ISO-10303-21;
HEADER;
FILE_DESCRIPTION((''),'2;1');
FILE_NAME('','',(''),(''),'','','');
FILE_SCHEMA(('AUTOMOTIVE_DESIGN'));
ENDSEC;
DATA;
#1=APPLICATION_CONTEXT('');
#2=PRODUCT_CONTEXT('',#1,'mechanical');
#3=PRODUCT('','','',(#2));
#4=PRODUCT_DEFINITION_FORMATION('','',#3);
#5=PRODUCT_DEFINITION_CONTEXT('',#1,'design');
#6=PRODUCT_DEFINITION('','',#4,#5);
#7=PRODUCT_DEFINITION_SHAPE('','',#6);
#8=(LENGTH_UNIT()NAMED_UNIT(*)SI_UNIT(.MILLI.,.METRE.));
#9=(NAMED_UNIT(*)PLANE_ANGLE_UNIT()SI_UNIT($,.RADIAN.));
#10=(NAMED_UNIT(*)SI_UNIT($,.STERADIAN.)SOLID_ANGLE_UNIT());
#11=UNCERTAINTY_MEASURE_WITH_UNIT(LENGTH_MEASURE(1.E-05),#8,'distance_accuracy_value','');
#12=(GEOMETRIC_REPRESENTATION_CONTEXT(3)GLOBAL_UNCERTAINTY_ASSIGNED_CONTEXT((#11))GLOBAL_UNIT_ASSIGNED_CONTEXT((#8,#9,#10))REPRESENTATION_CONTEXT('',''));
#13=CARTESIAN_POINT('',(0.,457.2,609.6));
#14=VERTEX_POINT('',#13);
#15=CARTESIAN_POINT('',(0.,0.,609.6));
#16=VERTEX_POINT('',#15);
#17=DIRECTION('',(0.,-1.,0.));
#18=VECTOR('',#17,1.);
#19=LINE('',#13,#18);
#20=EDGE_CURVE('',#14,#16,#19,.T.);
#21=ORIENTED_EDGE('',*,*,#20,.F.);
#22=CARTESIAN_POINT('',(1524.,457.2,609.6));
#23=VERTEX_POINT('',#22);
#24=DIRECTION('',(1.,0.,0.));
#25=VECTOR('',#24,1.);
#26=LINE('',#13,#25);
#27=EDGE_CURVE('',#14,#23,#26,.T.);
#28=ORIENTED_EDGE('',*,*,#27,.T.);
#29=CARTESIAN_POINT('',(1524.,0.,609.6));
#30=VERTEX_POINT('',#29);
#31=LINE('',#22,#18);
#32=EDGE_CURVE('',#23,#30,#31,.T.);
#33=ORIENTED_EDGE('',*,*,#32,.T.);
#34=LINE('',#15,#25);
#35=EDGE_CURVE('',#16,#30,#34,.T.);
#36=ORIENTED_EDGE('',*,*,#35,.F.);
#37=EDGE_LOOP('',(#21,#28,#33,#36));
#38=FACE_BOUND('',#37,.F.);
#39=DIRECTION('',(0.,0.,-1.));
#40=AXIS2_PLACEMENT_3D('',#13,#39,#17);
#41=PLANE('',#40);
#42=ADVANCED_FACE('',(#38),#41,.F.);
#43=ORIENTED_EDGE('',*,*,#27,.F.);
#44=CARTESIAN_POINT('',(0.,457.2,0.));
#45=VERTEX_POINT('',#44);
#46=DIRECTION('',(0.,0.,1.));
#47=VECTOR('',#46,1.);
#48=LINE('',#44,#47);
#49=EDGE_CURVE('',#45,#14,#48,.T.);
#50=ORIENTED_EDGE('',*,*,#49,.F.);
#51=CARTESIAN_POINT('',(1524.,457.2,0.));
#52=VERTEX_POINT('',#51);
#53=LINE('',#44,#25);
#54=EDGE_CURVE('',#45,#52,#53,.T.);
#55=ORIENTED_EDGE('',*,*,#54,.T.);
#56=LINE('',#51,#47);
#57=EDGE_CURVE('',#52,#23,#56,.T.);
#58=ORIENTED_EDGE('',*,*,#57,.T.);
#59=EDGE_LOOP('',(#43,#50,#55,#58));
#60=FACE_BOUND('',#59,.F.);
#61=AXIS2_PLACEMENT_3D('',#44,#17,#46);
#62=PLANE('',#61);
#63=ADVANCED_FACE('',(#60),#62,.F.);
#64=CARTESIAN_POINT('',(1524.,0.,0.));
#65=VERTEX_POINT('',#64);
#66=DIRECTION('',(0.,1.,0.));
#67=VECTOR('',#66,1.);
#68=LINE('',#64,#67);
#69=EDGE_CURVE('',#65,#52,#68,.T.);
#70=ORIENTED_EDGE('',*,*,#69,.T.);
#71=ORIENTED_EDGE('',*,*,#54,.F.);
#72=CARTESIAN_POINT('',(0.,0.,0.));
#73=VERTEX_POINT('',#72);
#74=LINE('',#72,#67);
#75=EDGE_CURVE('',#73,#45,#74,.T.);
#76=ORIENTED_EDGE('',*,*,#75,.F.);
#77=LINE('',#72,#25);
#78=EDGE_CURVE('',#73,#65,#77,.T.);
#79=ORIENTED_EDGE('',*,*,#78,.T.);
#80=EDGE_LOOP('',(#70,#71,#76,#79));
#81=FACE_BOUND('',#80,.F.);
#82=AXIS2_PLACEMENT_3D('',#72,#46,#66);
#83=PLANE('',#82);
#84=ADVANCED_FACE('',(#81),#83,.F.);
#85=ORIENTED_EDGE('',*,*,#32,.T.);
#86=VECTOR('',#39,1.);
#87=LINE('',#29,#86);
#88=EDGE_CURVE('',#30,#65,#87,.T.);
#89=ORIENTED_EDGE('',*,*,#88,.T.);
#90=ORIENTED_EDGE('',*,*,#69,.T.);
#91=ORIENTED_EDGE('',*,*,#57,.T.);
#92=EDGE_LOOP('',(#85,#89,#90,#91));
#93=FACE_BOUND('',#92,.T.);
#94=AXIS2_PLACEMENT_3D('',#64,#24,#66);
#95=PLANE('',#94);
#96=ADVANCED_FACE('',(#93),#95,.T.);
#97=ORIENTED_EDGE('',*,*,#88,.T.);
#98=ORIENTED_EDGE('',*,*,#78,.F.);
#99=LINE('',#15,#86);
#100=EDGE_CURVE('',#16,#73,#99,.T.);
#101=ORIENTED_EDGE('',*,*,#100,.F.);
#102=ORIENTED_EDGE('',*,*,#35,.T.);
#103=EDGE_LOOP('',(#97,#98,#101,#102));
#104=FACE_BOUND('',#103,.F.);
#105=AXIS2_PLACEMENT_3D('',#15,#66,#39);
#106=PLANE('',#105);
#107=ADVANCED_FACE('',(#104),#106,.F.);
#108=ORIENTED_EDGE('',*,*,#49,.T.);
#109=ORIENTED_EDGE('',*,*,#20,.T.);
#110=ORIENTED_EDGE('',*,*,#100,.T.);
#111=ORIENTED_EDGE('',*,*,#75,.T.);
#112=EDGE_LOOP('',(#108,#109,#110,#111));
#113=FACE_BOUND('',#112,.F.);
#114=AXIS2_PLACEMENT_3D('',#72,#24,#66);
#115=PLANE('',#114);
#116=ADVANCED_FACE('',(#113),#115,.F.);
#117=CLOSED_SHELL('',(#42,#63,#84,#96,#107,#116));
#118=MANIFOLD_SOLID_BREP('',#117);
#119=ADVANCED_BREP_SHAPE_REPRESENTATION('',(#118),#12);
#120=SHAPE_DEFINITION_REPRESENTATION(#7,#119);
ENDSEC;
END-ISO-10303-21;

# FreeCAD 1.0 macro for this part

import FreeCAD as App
import Part
import Sketcher
from FreeCAD import Vector
Q = App.Units.Quantity


def add_polygon(sketch, points):
    """Adds a closed chain of lines whose ends are joined by coincident constraints."""
    first, n = sketch.GeometryCount, len(points)
    for a, b in zip(points, points[1:] + points[:1]):
        sketch.addGeometry(Part.LineSegment(App.Vector(*a, 0), App.Vector(*b, 0)), False)
    for i in range(n):
        sketch.addConstraint(Sketcher.Constraint("Coincident", first + i, 2, first + (i + 1) % n, 1))

doc = App.newDocument("Part")
body = doc.addObject("PartDesign::Body", "Body")

# Sketch on YZ plane
sketch1 = body.newObject("Sketcher::SketchObject", "Sketch")
sketch1.AttachmentSupport = (doc.getObject("YZ_Plane"), [""])
sketch1.MapMode = "FlatFace"
add_polygon(sketch1, [(0, 610), (0, 0), (457, 0), (457, 610)])  # lines 0-3
sketch1.addConstraint([
    Sketcher.Constraint("Vertical", 0),
    Sketcher.Constraint("Horizontal", 1),
    Sketcher.Constraint("Vertical", 2),
    Sketcher.Constraint("Horizontal", 3),
    Sketcher.Constraint("Coincident", 0, 2, -1, 1),
    Sketcher.Constraint("DistanceX", 1, 1, 1, 2, Q("18 in")),
    Sketcher.Constraint("DistanceY", 0, 2, 0, 1, Q("24 in")),
])
pad1 = body.newObject("PartDesign::Pad", "Pad")
pad1.Profile = sketch1
pad1.Length = Q("60 in")

doc.recompute()
